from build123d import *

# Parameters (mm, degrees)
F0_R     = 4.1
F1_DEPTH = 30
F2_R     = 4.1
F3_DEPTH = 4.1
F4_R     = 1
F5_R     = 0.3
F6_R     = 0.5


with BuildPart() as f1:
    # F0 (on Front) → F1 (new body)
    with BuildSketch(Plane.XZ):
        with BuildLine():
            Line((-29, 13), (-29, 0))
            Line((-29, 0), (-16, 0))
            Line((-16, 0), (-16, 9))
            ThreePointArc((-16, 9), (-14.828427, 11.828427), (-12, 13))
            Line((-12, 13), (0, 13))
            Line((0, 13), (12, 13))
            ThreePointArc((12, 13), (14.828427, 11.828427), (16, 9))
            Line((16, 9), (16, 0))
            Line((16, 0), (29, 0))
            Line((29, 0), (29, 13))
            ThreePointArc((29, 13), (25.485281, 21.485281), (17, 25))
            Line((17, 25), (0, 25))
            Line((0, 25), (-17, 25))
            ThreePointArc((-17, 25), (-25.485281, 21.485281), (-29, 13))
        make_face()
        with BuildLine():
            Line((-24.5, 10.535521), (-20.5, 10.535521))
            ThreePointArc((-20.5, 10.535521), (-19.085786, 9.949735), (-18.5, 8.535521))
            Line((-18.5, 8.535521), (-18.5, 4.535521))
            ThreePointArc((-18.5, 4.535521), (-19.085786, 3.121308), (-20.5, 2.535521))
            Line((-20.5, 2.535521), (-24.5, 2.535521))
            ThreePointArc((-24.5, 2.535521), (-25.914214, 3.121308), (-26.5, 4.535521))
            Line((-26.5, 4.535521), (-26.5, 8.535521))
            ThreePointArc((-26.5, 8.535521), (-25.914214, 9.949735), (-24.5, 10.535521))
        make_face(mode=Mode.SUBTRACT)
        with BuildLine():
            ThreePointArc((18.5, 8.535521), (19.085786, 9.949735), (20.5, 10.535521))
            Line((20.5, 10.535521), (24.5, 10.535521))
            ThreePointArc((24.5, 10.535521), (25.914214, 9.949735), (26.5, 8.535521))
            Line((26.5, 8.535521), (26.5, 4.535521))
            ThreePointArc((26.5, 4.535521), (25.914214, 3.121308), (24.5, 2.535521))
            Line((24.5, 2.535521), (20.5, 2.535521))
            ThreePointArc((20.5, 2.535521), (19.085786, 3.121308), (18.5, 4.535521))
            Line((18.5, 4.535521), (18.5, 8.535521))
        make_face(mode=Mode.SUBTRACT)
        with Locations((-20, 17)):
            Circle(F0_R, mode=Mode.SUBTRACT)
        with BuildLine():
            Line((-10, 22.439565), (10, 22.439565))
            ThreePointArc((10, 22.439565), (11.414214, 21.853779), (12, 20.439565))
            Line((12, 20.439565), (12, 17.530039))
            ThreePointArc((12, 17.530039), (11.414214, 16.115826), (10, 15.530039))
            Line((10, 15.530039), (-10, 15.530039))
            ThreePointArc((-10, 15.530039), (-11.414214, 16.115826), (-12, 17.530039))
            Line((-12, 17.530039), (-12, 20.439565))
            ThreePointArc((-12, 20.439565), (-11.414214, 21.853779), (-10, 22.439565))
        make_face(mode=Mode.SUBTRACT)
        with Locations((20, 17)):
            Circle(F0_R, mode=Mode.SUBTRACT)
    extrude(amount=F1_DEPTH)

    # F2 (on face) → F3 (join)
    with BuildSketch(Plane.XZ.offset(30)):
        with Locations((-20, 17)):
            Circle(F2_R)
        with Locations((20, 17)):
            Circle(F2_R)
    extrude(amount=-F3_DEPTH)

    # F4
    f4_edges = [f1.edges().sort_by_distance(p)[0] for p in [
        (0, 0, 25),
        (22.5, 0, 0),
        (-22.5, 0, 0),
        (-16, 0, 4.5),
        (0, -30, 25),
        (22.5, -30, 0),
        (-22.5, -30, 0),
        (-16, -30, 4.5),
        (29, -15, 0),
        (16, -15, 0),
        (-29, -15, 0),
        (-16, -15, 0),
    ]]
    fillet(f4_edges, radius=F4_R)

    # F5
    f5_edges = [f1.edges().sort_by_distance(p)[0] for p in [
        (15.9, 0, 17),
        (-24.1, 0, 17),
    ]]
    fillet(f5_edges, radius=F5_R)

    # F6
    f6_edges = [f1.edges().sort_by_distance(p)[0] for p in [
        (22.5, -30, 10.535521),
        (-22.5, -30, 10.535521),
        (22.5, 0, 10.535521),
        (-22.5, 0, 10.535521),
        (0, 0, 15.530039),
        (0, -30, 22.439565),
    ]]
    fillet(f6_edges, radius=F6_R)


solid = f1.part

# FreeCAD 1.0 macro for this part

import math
import FreeCAD as App
import Part
import Sketcher
Q = App.Units.Quantity


def edges_at(feature, points):
    """Names of the edges that pass closest to the given points."""
    edges = feature.Shape.Edges
    near = lambda p: min(range(len(edges)), key=lambda i: edges[i].distToShape(Part.Vertex(*p))[0])
    return sorted({f"Edge{near(p) + 1}" for p in points})

doc = App.newDocument("Part")
body = doc.addObject("PartDesign::Body", "Body")

sketch1 = body.newObject("Sketcher::SketchObject", "Sketch")
sketch1.AttachmentSupport = (doc.getObject("XZ_Plane"), [""])
sketch1.MapMode = "FlatFace"
sketch1.addGeometry(Part.LineSegment(App.Vector(-29, 13, 0), App.Vector(-29, 0, 0)), False)
sketch1.addGeometry(Part.LineSegment(App.Vector(-29, 0, 0), App.Vector(-16, 0, 0)), False)
sketch1.addGeometry(Part.LineSegment(App.Vector(-16, 0, 0), App.Vector(-16, 9, 0)), False)
sketch1.addGeometry(Part.ArcOfCircle(Part.Circle(App.Vector(-12, 9, 0), App.Vector(0, 0, 1), 4), math.radians(90), math.radians(180)), False)
sketch1.addGeometry(Part.LineSegment(App.Vector(-12, 13, 0), App.Vector(12, 13, 0)), False)
sketch1.addGeometry(Part.ArcOfCircle(Part.Circle(App.Vector(12, 9, 0), App.Vector(0, 0, 1), 4), math.radians(0), math.radians(90)), False)
sketch1.addGeometry(Part.LineSegment(App.Vector(16, 9, 0), App.Vector(16, 0, 0)), False)
sketch1.addGeometry(Part.LineSegment(App.Vector(16, 0, 0), App.Vector(29, 0, 0)), False)
sketch1.addGeometry(Part.LineSegment(App.Vector(29, 0, 0), App.Vector(29, 13, 0)), False)
sketch1.addGeometry(Part.ArcOfCircle(Part.Circle(App.Vector(17, 13, 0), App.Vector(0, 0, 1), 12), math.radians(0), math.radians(90)), False)
sketch1.addGeometry(Part.LineSegment(App.Vector(17, 25, 0), App.Vector(-17, 25, 0)), False)
sketch1.addGeometry(Part.ArcOfCircle(Part.Circle(App.Vector(-17, 13, 0), App.Vector(0, 0, 1), 12), math.radians(90), math.radians(180)), False)
sketch1.addGeometry(Part.ArcOfCircle(Part.Circle(App.Vector(-24.5, 8.5, 0), App.Vector(0, 0, 1), 2), math.radians(90), math.radians(180)), False)
sketch1.addGeometry(Part.LineSegment(App.Vector(-24.5, 10.5, 0), App.Vector(-20.5, 10.5, 0)), False)
sketch1.addGeometry(Part.ArcOfCircle(Part.Circle(App.Vector(-20.5, 8.5, 0), App.Vector(0, 0, 1), 2), math.radians(0), math.radians(90)), False)
sketch1.addGeometry(Part.LineSegment(App.Vector(-18.5, 8.5, 0), App.Vector(-18.5, 4.5, 0)), False)
sketch1.addGeometry(Part.ArcOfCircle(Part.Circle(App.Vector(-20.5, 4.5, 0), App.Vector(0, 0, 1), 2), math.radians(-90), math.radians(0)), False)
sketch1.addGeometry(Part.LineSegment(App.Vector(-20.5, 2.5, 0), App.Vector(-24.5, 2.5, 0)), False)
sketch1.addGeometry(Part.ArcOfCircle(Part.Circle(App.Vector(-24.5, 4.5, 0), App.Vector(0, 0, 1), 2), math.radians(-180), math.radians(-90)), False)
sketch1.addGeometry(Part.LineSegment(App.Vector(-26.5, 4.5, 0), App.Vector(-26.5, 8.5, 0)), False)
sketch1.addGeometry(Part.LineSegment(App.Vector(18.5, 4.5, 0), App.Vector(18.5, 8.5, 0)), False)
sketch1.addGeometry(Part.ArcOfCircle(Part.Circle(App.Vector(20.5, 8.5, 0), App.Vector(0, 0, 1), 2), math.radians(90), math.radians(180)), False)
sketch1.addGeometry(Part.LineSegment(App.Vector(20.5, 10.5, 0), App.Vector(24.5, 10.5, 0)), False)
sketch1.addGeometry(Part.ArcOfCircle(Part.Circle(App.Vector(24.5, 8.5, 0), App.Vector(0, 0, 1), 2), math.radians(0), math.radians(90)), False)
sketch1.addGeometry(Part.LineSegment(App.Vector(26.5, 8.5, 0), App.Vector(26.5, 4.5, 0)), False)
sketch1.addGeometry(Part.ArcOfCircle(Part.Circle(App.Vector(24.5, 4.5, 0), App.Vector(0, 0, 1), 2), math.radians(-90), math.radians(0)), False)
sketch1.addGeometry(Part.LineSegment(App.Vector(24.5, 2.5, 0), App.Vector(20.5, 2.5, 0)), False)
sketch1.addGeometry(Part.ArcOfCircle(Part.Circle(App.Vector(20.5, 4.5, 0), App.Vector(0, 0, 1), 2), math.radians(-180), math.radians(-90)), False)
sketch1.addGeometry(Part.Circle(App.Vector(-20, 17, 0), App.Vector(0, 0, 1), 4.1), False)
sketch1.addGeometry(Part.Circle(App.Vector(20, 17, 0), App.Vector(0, 0, 1), 4.1), False)
sketch1.addGeometry(Part.ArcOfCircle(Part.Circle(App.Vector(-10, 20.4, 0), App.Vector(0, 0, 1), 2), math.radians(90), math.radians(180)), False)
sketch1.addGeometry(Part.LineSegment(App.Vector(-10, 22.4, 0), App.Vector(10, 22.4, 0)), False)
sketch1.addGeometry(Part.ArcOfCircle(Part.Circle(App.Vector(10, 20.4, 0), App.Vector(0, 0, 1), 2), math.radians(0), math.radians(90)), False)
sketch1.addGeometry(Part.LineSegment(App.Vector(12, 20.4, 0), App.Vector(12, 17.5, 0)), False)
sketch1.addGeometry(Part.ArcOfCircle(Part.Circle(App.Vector(10, 17.5, 0), App.Vector(0, 0, 1), 2), math.radians(-90), math.radians(0)), False)
sketch1.addGeometry(Part.LineSegment(App.Vector(10, 15.5, 0), App.Vector(-10, 15.5, 0)), False)
sketch1.addGeometry(Part.ArcOfCircle(Part.Circle(App.Vector(-10, 17.5, 0), App.Vector(0, 0, 1), 2), math.radians(-180), math.radians(-90)), False)
sketch1.addGeometry(Part.LineSegment(App.Vector(-12, 17.5, 0), App.Vector(-12, 20.4, 0)), False)
sketch1.addConstraint(Sketcher.Constraint("Coincident", 0, 2, 1, 1))
sketch1.addConstraint(Sketcher.Constraint("Coincident", 1, 2, 2, 1))
sketch1.addConstraint(Sketcher.Constraint("Tangent", 2, 2, 3, 2))
sketch1.addConstraint(Sketcher.Constraint("Tangent", 3, 1, 4, 1))
sketch1.addConstraint(Sketcher.Constraint("Tangent", 4, 2, 5, 2))
sketch1.addConstraint(Sketcher.Constraint("Tangent", 5, 1, 6, 1))
sketch1.addConstraint(Sketcher.Constraint("Coincident", 6, 2, 7, 1))
sketch1.addConstraint(Sketcher.Constraint("Coincident", 7, 2, 8, 1))
sketch1.addConstraint(Sketcher.Constraint("Tangent", 8, 2, 9, 1))
sketch1.addConstraint(Sketcher.Constraint("Tangent", 9, 2, 10, 1))
sketch1.addConstraint(Sketcher.Constraint("Tangent", 10, 2, 11, 1))
sketch1.addConstraint(Sketcher.Constraint("Tangent", 11, 2, 0, 1))
sketch1.addConstraint(Sketcher.Constraint("Tangent", 12, 1, 13, 1))
sketch1.addConstraint(Sketcher.Constraint("Tangent", 13, 2, 14, 2))
sketch1.addConstraint(Sketcher.Constraint("Tangent", 14, 1, 15, 1))
sketch1.addConstraint(Sketcher.Constraint("Tangent", 15, 2, 16, 2))
sketch1.addConstraint(Sketcher.Constraint("Tangent", 16, 1, 17, 1))
sketch1.addConstraint(Sketcher.Constraint("Tangent", 17, 2, 18, 2))
sketch1.addConstraint(Sketcher.Constraint("Tangent", 18, 1, 19, 1))
sketch1.addConstraint(Sketcher.Constraint("Tangent", 19, 2, 12, 2))
sketch1.addConstraint(Sketcher.Constraint("Tangent", 20, 2, 21, 2))
sketch1.addConstraint(Sketcher.Constraint("Tangent", 21, 1, 22, 1))
sketch1.addConstraint(Sketcher.Constraint("Tangent", 22, 2, 23, 2))
sketch1.addConstraint(Sketcher.Constraint("Tangent", 23, 1, 24, 1))
sketch1.addConstraint(Sketcher.Constraint("Tangent", 24, 2, 25, 2))
sketch1.addConstraint(Sketcher.Constraint("Tangent", 25, 1, 26, 1))
sketch1.addConstraint(Sketcher.Constraint("Tangent", 26, 2, 27, 2))
sketch1.addConstraint(Sketcher.Constraint("Tangent", 27, 1, 20, 1))
sketch1.addConstraint(Sketcher.Constraint("Tangent", 30, 1, 31, 1))
sketch1.addConstraint(Sketcher.Constraint("Tangent", 31, 2, 32, 2))
sketch1.addConstraint(Sketcher.Constraint("Tangent", 32, 1, 33, 1))
sketch1.addConstraint(Sketcher.Constraint("Tangent", 33, 2, 34, 2))
sketch1.addConstraint(Sketcher.Constraint("Tangent", 34, 1, 35, 1))
sketch1.addConstraint(Sketcher.Constraint("Tangent", 35, 2, 36, 2))
sketch1.addConstraint(Sketcher.Constraint("Tangent", 36, 1, 37, 1))
sketch1.addConstraint(Sketcher.Constraint("Tangent", 37, 2, 30, 2))
sketch1.addConstraint(Sketcher.Constraint("Vertical", 0))
sketch1.addConstraint(Sketcher.Constraint("Horizontal", 1))
sketch1.addConstraint(Sketcher.Constraint("Vertical", 2))
sketch1.addConstraint(Sketcher.Constraint("Horizontal", 4))
sketch1.addConstraint(Sketcher.Constraint("Vertical", 6))
sketch1.addConstraint(Sketcher.Constraint("Horizontal", 7))
sketch1.addConstraint(Sketcher.Constraint("Vertical", 8))
sketch1.addConstraint(Sketcher.Constraint("Horizontal", 10))
sketch1.addConstraint(Sketcher.Constraint("Horizontal", 13))
sketch1.addConstraint(Sketcher.Constraint("Vertical", 15))
sketch1.addConstraint(Sketcher.Constraint("Horizontal", 17))
sketch1.addConstraint(Sketcher.Constraint("Vertical", 19))
sketch1.addConstraint(Sketcher.Constraint("Vertical", 20))
sketch1.addConstraint(Sketcher.Constraint("Horizontal", 22))
sketch1.addConstraint(Sketcher.Constraint("Vertical", 24))
sketch1.addConstraint(Sketcher.Constraint("Horizontal", 26))
sketch1.addConstraint(Sketcher.Constraint("Horizontal", 31))
sketch1.addConstraint(Sketcher.Constraint("Vertical", 33))
sketch1.addConstraint(Sketcher.Constraint("Horizontal", 35))
sketch1.addConstraint(Sketcher.Constraint("Vertical", 37))
sketch1.addConstraint(Sketcher.Constraint("Equal", 3, 5))
sketch1.addConstraint(Sketcher.Constraint("Equal", 9, 11))
sketch1.addConstraint(Sketcher.Constraint("Equal", 12, 14))
sketch1.addConstraint(Sketcher.Constraint("Equal", 14, 16))
sketch1.addConstraint(Sketcher.Constraint("Equal", 16, 18))
sketch1.addConstraint(Sketcher.Constraint("Equal", 18, 21))
sketch1.addConstraint(Sketcher.Constraint("Equal", 21, 23))
sketch1.addConstraint(Sketcher.Constraint("Equal", 23, 25))
sketch1.addConstraint(Sketcher.Constraint("Equal", 25, 27))
sketch1.addConstraint(Sketcher.Constraint("Equal", 28, 29))
sketch1.addConstraint(Sketcher.Constraint("Equal", 27, 30))
sketch1.addConstraint(Sketcher.Constraint("Equal", 30, 32))
sketch1.addConstraint(Sketcher.Constraint("Equal", 32, 34))
sketch1.addConstraint(Sketcher.Constraint("Equal", 34, 36))
sketch1.addConstraint(Sketcher.Constraint("Symmetric", 1, 2, 6, 2, -1, 1))
sketch1.addConstraint(Sketcher.Constraint("Symmetric", 14, 3, 21, 3, -2))
sketch1.addConstraint(Sketcher.Constraint("Symmetric", 18, 3, 25, 3, -2))
sketch1.addConstraint(Sketcher.Constraint("Symmetric", 28, 3, 29, 3, -2))
sketch1.addConstraint(Sketcher.Constraint("Symmetric", 0, 2, 7, 2, -2))
sketch1.addConstraint(Sketcher.Constraint("Horizontal", 11, 3, 3, 1))
sketch1.addConstraint(Sketcher.Constraint("Vertical", 4, 2, 32, 1))
sketch1.addConstraint(Sketcher.Constraint("Vertical", 3, 1, 36, 1))
sketch1.addConstraint(Sketcher.Constraint("Equal", 7, 0))
sketch1.addConstraint(Sketcher.Constraint("Equal", 26, 15))
sketch1.addConstraint(Sketcher.Constraint("Radius", 3, Q("4 mm")))
sketch1.addConstraint(Sketcher.Constraint("Radius", 9, Q("12.000001 mm")))
sketch1.addConstraint(Sketcher.Constraint("Radius", 12, Q("1.999999 mm")))
sketch1.addConstraint(Sketcher.Constraint("Diameter", 28, Q("8.2 mm")))
sketch1.addConstraint(Sketcher.Constraint("DistanceX", 1, 1, 1, 2, Q("13 mm")))
sketch1.addConstraint(Sketcher.Constraint("DistanceX", 4, 1, 4, 2, Q("24 mm")))
sketch1.addConstraint(Sketcher.Constraint("DistanceX", 13, 1, 13, 2, Q("4 mm")))
sketch1.addConstraint(Sketcher.Constraint("DistanceX", 28, 3, -1, 1, Q("20 mm")))
sketch1.addConstraint(Sketcher.Constraint("DistanceY", -1, 1, 28, 3, Q("17 mm")))
sketch1.addConstraint(Sketcher.Constraint("DistanceX", 12, 3, -1, 1, Q("24.500001 mm")))
sketch1.addConstraint(Sketcher.Constraint("DistanceY", 33, 2, 33, 1, Q("2.909526 mm")))
sketch1.addConstraint(Sketcher.Constraint("DistanceY", -1, 1, 16, 3, Q("4.535521 mm")))
sketch1.addConstraint(Sketcher.Constraint("DistanceY", -1, 1, 34, 3, Q("17.530039 mm")))
pad1 = body.newObject("PartDesign::Pad", "Pad")
pad1.Profile = sketch1
pad1.Length = 30

sketch2 = body.newObject("Sketcher::SketchObject", "Sketch001")
sketch2.AttachmentSupport = (doc.getObject("XZ_Plane"), [""])
sketch2.MapMode = "FlatFace"
sketch2.AttachmentOffset = App.Placement(App.Vector(0, 0, 30), App.Rotation())
sketch2.addGeometry(Part.Circle(App.Vector(-20, 17, 0), App.Vector(0, 0, 1), 4.1), False)
sketch2.addGeometry(Part.Circle(App.Vector(20, 17, 0), App.Vector(0, 0, 1), 4.1), False)
sketch2.addConstraint(Sketcher.Constraint("Equal", 0, 1))
sketch2.addConstraint(Sketcher.Constraint("Symmetric", 0, 3, 1, 3, -2))
sketch2.addConstraint(Sketcher.Constraint("Diameter", 0, Q("8.2 mm")))
sketch2.addConstraint(Sketcher.Constraint("DistanceX", 0, 3, -1, 1, Q("20 mm")))
sketch2.addConstraint(Sketcher.Constraint("DistanceY", -1, 1, 0, 3, Q("17 mm")))
pad2 = body.newObject("PartDesign::Pad", "Pad001")
pad2.Profile = sketch2
pad2.Length = 4.1
pad2.Reversed = True
doc.recompute()

fillet = body.newObject("PartDesign::Fillet", "Fillet")
fillet.Base = (pad2, edges_at(pad2, [
    (0, 0, 25),
    (22.5, 0, 0),
    (-22.5, 0, 0),
    (-16, 0, 4.5),
    (0, -30, 25),
    (22.5, -30, 0),
    (-22.5, -30, 0),
    (-16, -30, 4.5),
    (29, -15, 0),
    (16, -15, 0),
    (-29, -15, 0),
    (-16, -15, 0),
]))
fillet.Radius = 1
doc.recompute()

fillet2 = body.newObject("PartDesign::Fillet", "Fillet001")
fillet2.Base = (fillet, edges_at(fillet, [(15.9, 0, 17), (-24.1, 0, 17)]))
fillet2.Radius = 0.3
doc.recompute()

fillet3 = body.newObject("PartDesign::Fillet", "Fillet002")
fillet3.Base = (fillet2, edges_at(fillet2, [
    (22.5, -30, 10.536),
    (-22.5, -30, 10.536),
    (22.5, 0, 10.536),
    (-22.5, 0, 10.536),
    (0, 0, 15.53),
    (0, -30, 22.44),
]))
fillet3.Radius = 0.5

doc.recompute()
